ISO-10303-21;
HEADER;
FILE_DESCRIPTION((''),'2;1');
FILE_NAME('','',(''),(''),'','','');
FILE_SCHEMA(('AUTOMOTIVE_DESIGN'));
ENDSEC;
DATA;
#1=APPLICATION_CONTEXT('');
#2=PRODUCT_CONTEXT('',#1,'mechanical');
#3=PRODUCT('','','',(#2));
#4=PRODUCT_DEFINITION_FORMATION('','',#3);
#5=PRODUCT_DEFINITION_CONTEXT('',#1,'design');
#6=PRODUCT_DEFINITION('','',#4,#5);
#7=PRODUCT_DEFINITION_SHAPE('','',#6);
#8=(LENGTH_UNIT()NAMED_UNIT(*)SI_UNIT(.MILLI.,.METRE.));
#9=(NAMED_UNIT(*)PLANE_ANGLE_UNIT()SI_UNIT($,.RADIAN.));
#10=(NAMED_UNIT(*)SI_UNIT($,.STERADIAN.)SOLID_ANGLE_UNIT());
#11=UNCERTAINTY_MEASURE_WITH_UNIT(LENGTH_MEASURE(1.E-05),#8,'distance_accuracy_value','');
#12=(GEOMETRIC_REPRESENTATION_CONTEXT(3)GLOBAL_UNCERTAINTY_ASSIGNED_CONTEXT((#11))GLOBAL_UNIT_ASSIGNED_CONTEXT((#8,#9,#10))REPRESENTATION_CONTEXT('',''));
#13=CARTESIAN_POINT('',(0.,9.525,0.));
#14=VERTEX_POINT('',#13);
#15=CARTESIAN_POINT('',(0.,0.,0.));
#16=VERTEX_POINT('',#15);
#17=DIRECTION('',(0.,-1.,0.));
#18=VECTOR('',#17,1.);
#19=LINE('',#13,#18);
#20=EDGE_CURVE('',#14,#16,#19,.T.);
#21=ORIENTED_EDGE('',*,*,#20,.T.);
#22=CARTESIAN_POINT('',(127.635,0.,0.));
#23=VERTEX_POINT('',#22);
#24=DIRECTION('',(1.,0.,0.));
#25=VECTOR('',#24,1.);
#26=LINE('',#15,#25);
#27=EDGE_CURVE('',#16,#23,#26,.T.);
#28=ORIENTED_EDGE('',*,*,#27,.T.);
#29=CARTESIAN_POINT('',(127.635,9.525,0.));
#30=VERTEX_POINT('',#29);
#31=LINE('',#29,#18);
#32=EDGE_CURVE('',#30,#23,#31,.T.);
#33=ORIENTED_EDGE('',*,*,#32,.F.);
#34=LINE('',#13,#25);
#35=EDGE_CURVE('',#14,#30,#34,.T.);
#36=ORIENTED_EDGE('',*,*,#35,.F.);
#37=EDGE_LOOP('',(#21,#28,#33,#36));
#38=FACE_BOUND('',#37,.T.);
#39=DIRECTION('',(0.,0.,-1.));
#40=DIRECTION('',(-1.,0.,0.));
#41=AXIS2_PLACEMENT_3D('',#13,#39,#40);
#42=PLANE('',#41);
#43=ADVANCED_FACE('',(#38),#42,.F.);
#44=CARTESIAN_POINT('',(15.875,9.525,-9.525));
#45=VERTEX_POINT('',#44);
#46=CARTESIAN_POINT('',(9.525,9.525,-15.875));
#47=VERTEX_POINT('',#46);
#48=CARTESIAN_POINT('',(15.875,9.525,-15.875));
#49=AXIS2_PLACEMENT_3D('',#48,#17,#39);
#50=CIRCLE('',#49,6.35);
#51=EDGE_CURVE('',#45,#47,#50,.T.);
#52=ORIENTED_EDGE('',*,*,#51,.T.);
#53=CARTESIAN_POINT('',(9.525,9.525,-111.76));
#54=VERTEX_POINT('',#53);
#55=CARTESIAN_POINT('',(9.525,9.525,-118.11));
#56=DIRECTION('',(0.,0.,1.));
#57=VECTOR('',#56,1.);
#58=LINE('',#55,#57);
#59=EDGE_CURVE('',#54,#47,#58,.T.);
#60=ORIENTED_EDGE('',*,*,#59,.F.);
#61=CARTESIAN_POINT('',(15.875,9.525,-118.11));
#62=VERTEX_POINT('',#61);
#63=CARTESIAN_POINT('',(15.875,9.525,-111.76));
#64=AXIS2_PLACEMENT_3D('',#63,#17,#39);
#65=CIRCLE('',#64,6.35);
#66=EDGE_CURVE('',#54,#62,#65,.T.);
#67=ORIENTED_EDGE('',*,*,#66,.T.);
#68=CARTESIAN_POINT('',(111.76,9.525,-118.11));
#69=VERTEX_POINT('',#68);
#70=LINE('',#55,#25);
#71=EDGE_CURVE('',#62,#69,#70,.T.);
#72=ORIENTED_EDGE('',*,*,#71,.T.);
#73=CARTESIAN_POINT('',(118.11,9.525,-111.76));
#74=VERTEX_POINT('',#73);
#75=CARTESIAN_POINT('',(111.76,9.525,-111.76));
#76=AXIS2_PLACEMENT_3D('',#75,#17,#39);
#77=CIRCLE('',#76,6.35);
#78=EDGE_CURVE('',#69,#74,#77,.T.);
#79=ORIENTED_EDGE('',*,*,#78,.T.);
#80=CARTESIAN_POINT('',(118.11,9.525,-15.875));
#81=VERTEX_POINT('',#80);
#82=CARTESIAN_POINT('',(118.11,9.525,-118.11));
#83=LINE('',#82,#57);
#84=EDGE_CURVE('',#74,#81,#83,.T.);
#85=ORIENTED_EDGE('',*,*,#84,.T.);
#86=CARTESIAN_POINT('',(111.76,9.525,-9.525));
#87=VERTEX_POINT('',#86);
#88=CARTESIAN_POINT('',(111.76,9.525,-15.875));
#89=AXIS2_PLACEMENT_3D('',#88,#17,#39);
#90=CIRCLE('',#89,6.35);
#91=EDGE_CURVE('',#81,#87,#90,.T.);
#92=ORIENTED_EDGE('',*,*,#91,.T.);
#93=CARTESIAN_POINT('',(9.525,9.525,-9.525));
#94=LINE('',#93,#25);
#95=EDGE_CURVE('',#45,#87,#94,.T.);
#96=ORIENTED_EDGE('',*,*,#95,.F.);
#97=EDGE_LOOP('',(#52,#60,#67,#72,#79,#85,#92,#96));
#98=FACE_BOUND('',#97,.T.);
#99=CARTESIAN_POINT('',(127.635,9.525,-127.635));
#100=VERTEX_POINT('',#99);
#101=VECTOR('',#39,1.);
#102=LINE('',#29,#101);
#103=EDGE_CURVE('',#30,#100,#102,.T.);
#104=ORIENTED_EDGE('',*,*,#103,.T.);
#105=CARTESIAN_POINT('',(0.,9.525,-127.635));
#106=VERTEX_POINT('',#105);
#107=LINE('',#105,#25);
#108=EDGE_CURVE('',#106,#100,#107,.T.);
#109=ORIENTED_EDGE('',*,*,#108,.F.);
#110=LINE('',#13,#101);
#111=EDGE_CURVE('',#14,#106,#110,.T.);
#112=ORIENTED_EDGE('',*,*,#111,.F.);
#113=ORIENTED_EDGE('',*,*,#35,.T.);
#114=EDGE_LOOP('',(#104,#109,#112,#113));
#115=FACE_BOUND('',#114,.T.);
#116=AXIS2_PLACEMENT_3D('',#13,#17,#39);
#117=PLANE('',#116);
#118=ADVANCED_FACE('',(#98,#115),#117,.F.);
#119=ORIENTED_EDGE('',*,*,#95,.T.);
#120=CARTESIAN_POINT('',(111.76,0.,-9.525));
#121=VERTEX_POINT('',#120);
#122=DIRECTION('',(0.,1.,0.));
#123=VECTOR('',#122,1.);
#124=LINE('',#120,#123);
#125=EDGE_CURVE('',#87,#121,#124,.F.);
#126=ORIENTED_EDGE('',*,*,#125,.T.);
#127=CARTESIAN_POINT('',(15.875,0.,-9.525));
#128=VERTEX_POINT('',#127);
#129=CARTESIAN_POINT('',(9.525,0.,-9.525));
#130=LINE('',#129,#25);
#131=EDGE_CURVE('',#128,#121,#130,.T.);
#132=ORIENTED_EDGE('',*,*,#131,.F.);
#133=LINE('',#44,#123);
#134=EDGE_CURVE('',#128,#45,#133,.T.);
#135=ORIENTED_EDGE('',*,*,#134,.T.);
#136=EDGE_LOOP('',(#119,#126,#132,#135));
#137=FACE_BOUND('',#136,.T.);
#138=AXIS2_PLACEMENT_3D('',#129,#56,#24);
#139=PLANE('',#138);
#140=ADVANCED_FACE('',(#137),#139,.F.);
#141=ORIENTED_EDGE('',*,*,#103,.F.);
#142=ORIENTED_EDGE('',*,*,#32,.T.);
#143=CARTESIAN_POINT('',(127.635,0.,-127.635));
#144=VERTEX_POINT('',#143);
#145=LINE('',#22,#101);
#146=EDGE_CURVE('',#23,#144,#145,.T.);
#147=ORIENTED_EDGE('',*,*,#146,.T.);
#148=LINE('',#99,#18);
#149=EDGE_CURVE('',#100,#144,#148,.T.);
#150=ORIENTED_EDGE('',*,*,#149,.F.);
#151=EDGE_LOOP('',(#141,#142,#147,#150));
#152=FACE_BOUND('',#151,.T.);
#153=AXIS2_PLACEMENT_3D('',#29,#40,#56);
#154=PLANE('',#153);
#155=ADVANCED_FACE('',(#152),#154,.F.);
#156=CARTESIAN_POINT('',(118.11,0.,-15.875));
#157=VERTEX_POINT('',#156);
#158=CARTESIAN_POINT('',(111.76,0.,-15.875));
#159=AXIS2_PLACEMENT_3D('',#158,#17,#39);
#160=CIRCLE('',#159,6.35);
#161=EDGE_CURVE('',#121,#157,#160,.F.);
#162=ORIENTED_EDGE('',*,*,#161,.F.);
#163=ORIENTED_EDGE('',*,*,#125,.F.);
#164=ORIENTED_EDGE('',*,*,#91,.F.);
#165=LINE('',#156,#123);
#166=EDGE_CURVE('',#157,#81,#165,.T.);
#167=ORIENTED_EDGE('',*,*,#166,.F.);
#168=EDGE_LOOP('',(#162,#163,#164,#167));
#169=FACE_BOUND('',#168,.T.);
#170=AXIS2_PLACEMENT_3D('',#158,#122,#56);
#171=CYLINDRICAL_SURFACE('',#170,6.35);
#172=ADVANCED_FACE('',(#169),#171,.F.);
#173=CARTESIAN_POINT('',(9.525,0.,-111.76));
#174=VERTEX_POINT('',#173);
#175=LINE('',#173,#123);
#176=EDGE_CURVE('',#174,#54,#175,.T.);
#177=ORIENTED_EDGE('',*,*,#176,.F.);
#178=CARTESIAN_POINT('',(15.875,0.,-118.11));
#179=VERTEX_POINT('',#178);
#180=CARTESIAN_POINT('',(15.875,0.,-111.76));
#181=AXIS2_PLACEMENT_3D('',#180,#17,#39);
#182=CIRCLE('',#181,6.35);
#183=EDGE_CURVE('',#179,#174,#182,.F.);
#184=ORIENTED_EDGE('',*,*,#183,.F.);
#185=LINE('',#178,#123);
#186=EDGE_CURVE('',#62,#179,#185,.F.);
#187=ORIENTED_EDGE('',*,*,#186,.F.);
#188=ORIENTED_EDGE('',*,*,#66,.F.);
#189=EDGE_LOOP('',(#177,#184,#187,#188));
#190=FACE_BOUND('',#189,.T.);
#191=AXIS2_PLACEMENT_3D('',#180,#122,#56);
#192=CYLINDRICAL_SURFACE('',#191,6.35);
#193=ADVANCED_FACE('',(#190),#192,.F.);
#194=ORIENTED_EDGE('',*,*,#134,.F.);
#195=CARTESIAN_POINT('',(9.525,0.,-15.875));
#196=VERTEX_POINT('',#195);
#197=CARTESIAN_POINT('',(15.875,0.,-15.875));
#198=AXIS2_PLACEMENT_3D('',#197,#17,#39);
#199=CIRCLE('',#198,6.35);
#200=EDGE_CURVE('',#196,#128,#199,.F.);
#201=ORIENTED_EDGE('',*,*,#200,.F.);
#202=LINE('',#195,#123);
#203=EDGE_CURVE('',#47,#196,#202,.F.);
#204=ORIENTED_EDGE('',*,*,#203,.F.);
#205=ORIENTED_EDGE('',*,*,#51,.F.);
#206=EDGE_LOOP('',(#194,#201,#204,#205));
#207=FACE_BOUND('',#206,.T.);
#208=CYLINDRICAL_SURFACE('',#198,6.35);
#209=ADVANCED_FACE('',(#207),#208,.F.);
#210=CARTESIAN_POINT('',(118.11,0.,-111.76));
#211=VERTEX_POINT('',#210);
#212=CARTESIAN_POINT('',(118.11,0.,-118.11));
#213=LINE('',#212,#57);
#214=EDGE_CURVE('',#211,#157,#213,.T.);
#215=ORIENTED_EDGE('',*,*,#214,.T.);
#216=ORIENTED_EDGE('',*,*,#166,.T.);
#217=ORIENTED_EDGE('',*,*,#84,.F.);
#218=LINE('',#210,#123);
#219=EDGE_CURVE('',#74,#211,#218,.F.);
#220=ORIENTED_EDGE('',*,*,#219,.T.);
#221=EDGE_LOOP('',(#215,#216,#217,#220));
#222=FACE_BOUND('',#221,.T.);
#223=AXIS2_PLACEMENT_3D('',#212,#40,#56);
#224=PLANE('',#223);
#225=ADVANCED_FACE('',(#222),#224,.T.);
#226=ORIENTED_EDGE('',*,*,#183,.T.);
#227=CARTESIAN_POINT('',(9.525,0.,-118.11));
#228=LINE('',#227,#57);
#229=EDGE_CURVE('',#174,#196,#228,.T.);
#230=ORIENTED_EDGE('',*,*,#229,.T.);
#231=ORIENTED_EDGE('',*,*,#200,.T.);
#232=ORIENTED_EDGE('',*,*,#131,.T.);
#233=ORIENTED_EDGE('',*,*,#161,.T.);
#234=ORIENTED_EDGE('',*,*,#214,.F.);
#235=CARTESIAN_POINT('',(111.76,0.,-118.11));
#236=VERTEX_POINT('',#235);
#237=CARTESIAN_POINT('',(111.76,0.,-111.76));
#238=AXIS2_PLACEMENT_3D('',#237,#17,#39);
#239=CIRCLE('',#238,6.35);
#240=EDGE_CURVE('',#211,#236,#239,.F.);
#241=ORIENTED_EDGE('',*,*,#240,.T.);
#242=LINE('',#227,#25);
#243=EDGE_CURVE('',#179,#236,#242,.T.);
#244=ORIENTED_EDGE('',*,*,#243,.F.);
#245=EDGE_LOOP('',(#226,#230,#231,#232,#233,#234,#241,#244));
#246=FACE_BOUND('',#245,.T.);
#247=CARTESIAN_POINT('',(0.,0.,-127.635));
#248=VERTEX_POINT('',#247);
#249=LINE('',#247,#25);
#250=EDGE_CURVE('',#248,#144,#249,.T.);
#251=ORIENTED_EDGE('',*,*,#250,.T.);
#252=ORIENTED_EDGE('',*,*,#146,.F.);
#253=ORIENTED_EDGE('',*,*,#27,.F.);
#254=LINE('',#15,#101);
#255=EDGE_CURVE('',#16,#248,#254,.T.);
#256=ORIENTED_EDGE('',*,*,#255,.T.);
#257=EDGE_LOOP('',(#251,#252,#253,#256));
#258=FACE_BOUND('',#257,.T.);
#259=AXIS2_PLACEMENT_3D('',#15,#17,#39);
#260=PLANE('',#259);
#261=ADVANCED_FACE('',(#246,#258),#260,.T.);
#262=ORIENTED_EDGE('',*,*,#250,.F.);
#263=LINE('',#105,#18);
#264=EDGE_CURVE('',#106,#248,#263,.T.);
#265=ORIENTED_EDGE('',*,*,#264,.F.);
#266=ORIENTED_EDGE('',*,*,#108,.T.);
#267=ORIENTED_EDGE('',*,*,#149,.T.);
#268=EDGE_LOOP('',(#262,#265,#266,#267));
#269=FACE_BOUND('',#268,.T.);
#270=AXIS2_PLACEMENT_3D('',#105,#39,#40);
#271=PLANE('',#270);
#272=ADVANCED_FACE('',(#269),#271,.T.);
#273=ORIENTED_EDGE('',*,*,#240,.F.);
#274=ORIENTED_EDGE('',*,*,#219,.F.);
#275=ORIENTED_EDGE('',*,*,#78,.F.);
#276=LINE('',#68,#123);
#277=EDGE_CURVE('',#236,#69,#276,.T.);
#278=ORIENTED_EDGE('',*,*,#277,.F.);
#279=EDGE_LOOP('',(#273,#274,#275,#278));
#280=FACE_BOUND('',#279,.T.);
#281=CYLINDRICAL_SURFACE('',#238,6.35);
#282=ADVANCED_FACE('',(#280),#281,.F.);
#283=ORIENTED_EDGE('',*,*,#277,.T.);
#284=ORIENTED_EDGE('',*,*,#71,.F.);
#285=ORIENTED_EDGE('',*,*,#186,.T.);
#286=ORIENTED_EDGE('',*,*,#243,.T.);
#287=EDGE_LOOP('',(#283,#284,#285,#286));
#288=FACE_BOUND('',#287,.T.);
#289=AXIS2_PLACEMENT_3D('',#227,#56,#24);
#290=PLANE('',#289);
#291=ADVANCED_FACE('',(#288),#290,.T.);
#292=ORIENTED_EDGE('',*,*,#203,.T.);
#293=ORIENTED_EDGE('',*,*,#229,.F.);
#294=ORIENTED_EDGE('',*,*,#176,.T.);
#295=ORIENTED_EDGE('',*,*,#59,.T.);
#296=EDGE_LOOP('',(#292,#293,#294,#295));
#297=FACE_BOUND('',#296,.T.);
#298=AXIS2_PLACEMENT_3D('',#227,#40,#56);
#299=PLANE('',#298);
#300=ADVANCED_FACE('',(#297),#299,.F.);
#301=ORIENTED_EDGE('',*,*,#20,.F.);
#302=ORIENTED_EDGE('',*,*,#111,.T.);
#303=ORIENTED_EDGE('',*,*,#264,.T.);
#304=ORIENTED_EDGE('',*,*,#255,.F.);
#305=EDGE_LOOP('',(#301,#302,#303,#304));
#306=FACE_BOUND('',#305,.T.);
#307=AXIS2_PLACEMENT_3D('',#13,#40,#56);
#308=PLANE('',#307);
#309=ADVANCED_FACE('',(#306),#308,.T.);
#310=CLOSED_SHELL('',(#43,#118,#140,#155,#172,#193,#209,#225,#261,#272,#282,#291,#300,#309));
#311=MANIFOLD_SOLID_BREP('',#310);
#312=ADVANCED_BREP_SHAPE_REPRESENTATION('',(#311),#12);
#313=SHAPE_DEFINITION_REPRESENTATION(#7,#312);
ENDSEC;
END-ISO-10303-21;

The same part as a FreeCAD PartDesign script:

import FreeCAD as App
import Part
import Sketcher

V = App.Vector
Q = App.Units.Quantity


def edges_at(feature, points):
    """Names of the edges that pass closest to the given points."""
    edges = feature.Shape.Edges
    near = lambda p: min(range(len(edges)), key=lambda i: edges[i].distToShape(Part.Vertex(*p))[0])
    return sorted({f"Edge{near(p) + 1}" for p in points})

doc = App.newDocument("Part")
params = doc.addObject("Spreadsheet::Sheet", "Params")
for row, (alias, value) in enumerate([
    ("sketch1_width", "5.025 in"),
    ("pad1_length", "0.375 in"),
    ("sketch2_width", "4.275 in"),
    ("pocket1_length", "0.375 in"),
    ("fillet_radius", "0.25 in"),
], start=1):
    params.set(f"A{row}", alias)
    params.set(f"B{row}", "=" + value)
    params.setAlias(f"B{row}", alias)

body = doc.addObject("PartDesign::Body", "Body")

# Sketch on XZ plane
sketch1 = doc.addObject("Sketcher::SketchObject", "Sketch")
body.addObject(sketch1)
sketch1.AttachmentSupport = (doc.XZ_Plane, [""])
sketch1.MapMode = "FlatFace"
sketch1.addGeometry([
    Part.LineSegment(V(0, -127.635, 0), V(0, 0, 0)),
    Part.LineSegment(V(0, 0, 0), V(127.635, 0, 0)),
    Part.LineSegment(V(127.635, 0, 0), V(127.635, -127.635, 0)),
    Part.LineSegment(V(127.635, -127.635, 0), V(0, -127.635, 0)),
], False)
sketch1.addConstraint([
    Sketcher.Constraint("Coincident", 0, 2, 1, 1),
    Sketcher.Constraint("Coincident", 1, 2, 2, 1),
    Sketcher.Constraint("Coincident", 2, 2, 3, 1),
    Sketcher.Constraint("Coincident", 3, 2, 0, 1),
    Sketcher.Constraint("Vertical", 0),
    Sketcher.Constraint("Horizontal", 1),
    Sketcher.Constraint("Vertical", 2),
    Sketcher.Constraint("Horizontal", 3),
    Sketcher.Constraint("Coincident", 0, 2, -1, 1),
    Sketcher.Constraint("Equal", 3, 0),
    Sketcher.Constraint("DistanceX", 1, 1, 1, 2, Q("5.025 in")),
])
sketch1.setExpression("Constraints[10]", "Params.sketch1_width")
pad1 = doc.addObject("PartDesign::Pad", "Pad")
body.addObject(pad1)
pad1.Profile = sketch1
pad1.setExpression("Length", "Params.pad1_length")
pad1.Reversed = True

# Sketch on XZ plane
sketch2 = doc.addObject("Sketcher::SketchObject", "Sketch001")
body.addObject(sketch2)
sketch2.AttachmentSupport = (doc.XZ_Plane, [""])
sketch2.MapMode = "FlatFace"
sketch2.AttachmentOffset = App.Placement(V(0, 0, -0.375 * 25.4), App.Rotation())
sketch2.addGeometry([
    Part.LineSegment(V(9.525, -118.11, 0), V(9.525, -9.525, 0)),
    Part.LineSegment(V(9.525, -9.525, 0), V(118.11, -9.525, 0)),
    Part.LineSegment(V(118.11, -9.525, 0), V(118.11, -118.11, 0)),
    Part.LineSegment(V(118.11, -118.11, 0), V(9.525, -118.11, 0)),
], False)
sketch2.addConstraint([
    Sketcher.Constraint("Coincident", 0, 2, 1, 1),
    Sketcher.Constraint("Coincident", 1, 2, 2, 1),
    Sketcher.Constraint("Coincident", 2, 2, 3, 1),
    Sketcher.Constraint("Coincident", 3, 2, 0, 1),
    Sketcher.Constraint("Vertical", 0),
    Sketcher.Constraint("Horizontal", 1),
    Sketcher.Constraint("Vertical", 2),
    Sketcher.Constraint("Horizontal", 3),
    Sketcher.Constraint("Equal", 3, 0),
    Sketcher.Constraint("DistanceX", 1, 1, 1, 2, Q("4.275 in")),
    Sketcher.Constraint("DistanceX", -1, 1, 1, 2, Q("4.65 in")),
    Sketcher.Constraint("DistanceY", 2, 2, -1, 1, Q("4.65 in")),
])
sketch2.setExpression("Constraints[9]", "Params.sketch2_width")
pocket1 = doc.addObject("PartDesign::Pocket", "Pocket")
body.addObject(pocket1)
pocket1.Profile = sketch2
pocket1.setExpression("Length", "Params.pocket1_length")
pocket1.Reversed = True
doc.recompute()

fillet = doc.addObject("PartDesign::Fillet", "Fillet")
body.addObject(fillet)
fillet.Base = (pocket1, edges_at(pocket1, [
    (118.11, 4.763, -9.525),
    (9.525, 4.763, -9.525),
    (9.525, 4.763, -118.11),
    (118.11, 4.763, -118.11),
]))
fillet.setExpression("Radius", "Params.fillet_radius")

doc.recompute()
